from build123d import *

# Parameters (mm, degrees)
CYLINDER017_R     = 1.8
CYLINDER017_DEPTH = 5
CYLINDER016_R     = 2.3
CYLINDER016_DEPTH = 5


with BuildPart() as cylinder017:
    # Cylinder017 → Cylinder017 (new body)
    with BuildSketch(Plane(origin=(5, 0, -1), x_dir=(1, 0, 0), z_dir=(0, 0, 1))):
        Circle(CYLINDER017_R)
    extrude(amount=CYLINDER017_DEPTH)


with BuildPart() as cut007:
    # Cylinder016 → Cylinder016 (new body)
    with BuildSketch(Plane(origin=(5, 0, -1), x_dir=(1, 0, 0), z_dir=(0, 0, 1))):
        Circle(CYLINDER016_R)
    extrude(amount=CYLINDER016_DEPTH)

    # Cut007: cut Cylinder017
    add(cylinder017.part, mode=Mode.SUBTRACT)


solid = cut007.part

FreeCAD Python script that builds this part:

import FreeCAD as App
import Part
import Sketcher

doc = App.newDocument("Part")
params = doc.addObject("Spreadsheet::Sheet", "Params")
for row, (alias, value) in enumerate([
    ("sketch1_diameter", "3.6 mm"),
    ("pad1_length", "5 mm"),
    ("sketch2_diameter", "4.6 mm"),
    ("pad2_length", "5 mm"),
], start=1):
    params.set(f"A{row}", alias)
    params.set(f"B{row}", "=" + value)
    params.setAlias(f"B{row}", alias)

body = doc.addObject("PartDesign::Body", "Body")

# Sketch on XY plane
sketch1 = doc.addObject("Sketcher::SketchObject", "Sketch")
body.addObject(sketch1)
sketch1.AttachmentSupport = (doc.XY_Plane, [""])
sketch1.MapMode = "FlatFace"
sketch1.AttachmentOffset = App.Placement(App.Vector(0, 0, -1), App.Rotation())
sketch1.addGeometry(Part.Circle(App.Vector(5, 0, 0), App.Vector(0, 0, 1), 1.8), False)
sketch1.addConstraint([
    Sketcher.Constraint("PointOnObject", 0, 3, -1),
    Sketcher.Constraint("Diameter", 0, 3.6),
    Sketcher.Constraint("DistanceX", -1, 1, 0, 3, 5.0),
])
sketch1.setExpression("Constraints[1]", "Params.sketch1_diameter")
pad1 = doc.addObject("PartDesign::Pad", "Pad")
body.addObject(pad1)
pad1.Profile = sketch1
pad1.setExpression("Length", "Params.pad1_length")
body2 = doc.addObject("PartDesign::Body", "Body001")

# Sketch on XY plane
sketch2 = doc.addObject("Sketcher::SketchObject", "Sketch001")
body2.addObject(sketch2)
sketch2.AttachmentSupport = (doc.getObject("XY_Plane001"), [""])
sketch2.MapMode = "FlatFace"
sketch2.AttachmentOffset = App.Placement(App.Vector(0, 0, -1), App.Rotation())
sketch2.addGeometry(Part.Circle(App.Vector(5, 0, 0), App.Vector(0, 0, 1), 2.3), False)
sketch2.addConstraint([
    Sketcher.Constraint("PointOnObject", 0, 3, -1),
    Sketcher.Constraint("Diameter", 0, 4.6),
    Sketcher.Constraint("DistanceX", -1, 1, 0, 3, 5.0),
])
sketch2.setExpression("Constraints[1]", "Params.sketch2_diameter")
pad2 = doc.addObject("PartDesign::Pad", "Pad001")
body2.addObject(pad2)
pad2.Profile = sketch2
pad2.setExpression("Length", "Params.pad2_length")
doc.recompute()

boolean = doc.addObject("PartDesign::Boolean", "Boolean")
body2.addObject(boolean)
boolean.Type = "Cut"
boolean.addObjects([body])

doc.recompute()
